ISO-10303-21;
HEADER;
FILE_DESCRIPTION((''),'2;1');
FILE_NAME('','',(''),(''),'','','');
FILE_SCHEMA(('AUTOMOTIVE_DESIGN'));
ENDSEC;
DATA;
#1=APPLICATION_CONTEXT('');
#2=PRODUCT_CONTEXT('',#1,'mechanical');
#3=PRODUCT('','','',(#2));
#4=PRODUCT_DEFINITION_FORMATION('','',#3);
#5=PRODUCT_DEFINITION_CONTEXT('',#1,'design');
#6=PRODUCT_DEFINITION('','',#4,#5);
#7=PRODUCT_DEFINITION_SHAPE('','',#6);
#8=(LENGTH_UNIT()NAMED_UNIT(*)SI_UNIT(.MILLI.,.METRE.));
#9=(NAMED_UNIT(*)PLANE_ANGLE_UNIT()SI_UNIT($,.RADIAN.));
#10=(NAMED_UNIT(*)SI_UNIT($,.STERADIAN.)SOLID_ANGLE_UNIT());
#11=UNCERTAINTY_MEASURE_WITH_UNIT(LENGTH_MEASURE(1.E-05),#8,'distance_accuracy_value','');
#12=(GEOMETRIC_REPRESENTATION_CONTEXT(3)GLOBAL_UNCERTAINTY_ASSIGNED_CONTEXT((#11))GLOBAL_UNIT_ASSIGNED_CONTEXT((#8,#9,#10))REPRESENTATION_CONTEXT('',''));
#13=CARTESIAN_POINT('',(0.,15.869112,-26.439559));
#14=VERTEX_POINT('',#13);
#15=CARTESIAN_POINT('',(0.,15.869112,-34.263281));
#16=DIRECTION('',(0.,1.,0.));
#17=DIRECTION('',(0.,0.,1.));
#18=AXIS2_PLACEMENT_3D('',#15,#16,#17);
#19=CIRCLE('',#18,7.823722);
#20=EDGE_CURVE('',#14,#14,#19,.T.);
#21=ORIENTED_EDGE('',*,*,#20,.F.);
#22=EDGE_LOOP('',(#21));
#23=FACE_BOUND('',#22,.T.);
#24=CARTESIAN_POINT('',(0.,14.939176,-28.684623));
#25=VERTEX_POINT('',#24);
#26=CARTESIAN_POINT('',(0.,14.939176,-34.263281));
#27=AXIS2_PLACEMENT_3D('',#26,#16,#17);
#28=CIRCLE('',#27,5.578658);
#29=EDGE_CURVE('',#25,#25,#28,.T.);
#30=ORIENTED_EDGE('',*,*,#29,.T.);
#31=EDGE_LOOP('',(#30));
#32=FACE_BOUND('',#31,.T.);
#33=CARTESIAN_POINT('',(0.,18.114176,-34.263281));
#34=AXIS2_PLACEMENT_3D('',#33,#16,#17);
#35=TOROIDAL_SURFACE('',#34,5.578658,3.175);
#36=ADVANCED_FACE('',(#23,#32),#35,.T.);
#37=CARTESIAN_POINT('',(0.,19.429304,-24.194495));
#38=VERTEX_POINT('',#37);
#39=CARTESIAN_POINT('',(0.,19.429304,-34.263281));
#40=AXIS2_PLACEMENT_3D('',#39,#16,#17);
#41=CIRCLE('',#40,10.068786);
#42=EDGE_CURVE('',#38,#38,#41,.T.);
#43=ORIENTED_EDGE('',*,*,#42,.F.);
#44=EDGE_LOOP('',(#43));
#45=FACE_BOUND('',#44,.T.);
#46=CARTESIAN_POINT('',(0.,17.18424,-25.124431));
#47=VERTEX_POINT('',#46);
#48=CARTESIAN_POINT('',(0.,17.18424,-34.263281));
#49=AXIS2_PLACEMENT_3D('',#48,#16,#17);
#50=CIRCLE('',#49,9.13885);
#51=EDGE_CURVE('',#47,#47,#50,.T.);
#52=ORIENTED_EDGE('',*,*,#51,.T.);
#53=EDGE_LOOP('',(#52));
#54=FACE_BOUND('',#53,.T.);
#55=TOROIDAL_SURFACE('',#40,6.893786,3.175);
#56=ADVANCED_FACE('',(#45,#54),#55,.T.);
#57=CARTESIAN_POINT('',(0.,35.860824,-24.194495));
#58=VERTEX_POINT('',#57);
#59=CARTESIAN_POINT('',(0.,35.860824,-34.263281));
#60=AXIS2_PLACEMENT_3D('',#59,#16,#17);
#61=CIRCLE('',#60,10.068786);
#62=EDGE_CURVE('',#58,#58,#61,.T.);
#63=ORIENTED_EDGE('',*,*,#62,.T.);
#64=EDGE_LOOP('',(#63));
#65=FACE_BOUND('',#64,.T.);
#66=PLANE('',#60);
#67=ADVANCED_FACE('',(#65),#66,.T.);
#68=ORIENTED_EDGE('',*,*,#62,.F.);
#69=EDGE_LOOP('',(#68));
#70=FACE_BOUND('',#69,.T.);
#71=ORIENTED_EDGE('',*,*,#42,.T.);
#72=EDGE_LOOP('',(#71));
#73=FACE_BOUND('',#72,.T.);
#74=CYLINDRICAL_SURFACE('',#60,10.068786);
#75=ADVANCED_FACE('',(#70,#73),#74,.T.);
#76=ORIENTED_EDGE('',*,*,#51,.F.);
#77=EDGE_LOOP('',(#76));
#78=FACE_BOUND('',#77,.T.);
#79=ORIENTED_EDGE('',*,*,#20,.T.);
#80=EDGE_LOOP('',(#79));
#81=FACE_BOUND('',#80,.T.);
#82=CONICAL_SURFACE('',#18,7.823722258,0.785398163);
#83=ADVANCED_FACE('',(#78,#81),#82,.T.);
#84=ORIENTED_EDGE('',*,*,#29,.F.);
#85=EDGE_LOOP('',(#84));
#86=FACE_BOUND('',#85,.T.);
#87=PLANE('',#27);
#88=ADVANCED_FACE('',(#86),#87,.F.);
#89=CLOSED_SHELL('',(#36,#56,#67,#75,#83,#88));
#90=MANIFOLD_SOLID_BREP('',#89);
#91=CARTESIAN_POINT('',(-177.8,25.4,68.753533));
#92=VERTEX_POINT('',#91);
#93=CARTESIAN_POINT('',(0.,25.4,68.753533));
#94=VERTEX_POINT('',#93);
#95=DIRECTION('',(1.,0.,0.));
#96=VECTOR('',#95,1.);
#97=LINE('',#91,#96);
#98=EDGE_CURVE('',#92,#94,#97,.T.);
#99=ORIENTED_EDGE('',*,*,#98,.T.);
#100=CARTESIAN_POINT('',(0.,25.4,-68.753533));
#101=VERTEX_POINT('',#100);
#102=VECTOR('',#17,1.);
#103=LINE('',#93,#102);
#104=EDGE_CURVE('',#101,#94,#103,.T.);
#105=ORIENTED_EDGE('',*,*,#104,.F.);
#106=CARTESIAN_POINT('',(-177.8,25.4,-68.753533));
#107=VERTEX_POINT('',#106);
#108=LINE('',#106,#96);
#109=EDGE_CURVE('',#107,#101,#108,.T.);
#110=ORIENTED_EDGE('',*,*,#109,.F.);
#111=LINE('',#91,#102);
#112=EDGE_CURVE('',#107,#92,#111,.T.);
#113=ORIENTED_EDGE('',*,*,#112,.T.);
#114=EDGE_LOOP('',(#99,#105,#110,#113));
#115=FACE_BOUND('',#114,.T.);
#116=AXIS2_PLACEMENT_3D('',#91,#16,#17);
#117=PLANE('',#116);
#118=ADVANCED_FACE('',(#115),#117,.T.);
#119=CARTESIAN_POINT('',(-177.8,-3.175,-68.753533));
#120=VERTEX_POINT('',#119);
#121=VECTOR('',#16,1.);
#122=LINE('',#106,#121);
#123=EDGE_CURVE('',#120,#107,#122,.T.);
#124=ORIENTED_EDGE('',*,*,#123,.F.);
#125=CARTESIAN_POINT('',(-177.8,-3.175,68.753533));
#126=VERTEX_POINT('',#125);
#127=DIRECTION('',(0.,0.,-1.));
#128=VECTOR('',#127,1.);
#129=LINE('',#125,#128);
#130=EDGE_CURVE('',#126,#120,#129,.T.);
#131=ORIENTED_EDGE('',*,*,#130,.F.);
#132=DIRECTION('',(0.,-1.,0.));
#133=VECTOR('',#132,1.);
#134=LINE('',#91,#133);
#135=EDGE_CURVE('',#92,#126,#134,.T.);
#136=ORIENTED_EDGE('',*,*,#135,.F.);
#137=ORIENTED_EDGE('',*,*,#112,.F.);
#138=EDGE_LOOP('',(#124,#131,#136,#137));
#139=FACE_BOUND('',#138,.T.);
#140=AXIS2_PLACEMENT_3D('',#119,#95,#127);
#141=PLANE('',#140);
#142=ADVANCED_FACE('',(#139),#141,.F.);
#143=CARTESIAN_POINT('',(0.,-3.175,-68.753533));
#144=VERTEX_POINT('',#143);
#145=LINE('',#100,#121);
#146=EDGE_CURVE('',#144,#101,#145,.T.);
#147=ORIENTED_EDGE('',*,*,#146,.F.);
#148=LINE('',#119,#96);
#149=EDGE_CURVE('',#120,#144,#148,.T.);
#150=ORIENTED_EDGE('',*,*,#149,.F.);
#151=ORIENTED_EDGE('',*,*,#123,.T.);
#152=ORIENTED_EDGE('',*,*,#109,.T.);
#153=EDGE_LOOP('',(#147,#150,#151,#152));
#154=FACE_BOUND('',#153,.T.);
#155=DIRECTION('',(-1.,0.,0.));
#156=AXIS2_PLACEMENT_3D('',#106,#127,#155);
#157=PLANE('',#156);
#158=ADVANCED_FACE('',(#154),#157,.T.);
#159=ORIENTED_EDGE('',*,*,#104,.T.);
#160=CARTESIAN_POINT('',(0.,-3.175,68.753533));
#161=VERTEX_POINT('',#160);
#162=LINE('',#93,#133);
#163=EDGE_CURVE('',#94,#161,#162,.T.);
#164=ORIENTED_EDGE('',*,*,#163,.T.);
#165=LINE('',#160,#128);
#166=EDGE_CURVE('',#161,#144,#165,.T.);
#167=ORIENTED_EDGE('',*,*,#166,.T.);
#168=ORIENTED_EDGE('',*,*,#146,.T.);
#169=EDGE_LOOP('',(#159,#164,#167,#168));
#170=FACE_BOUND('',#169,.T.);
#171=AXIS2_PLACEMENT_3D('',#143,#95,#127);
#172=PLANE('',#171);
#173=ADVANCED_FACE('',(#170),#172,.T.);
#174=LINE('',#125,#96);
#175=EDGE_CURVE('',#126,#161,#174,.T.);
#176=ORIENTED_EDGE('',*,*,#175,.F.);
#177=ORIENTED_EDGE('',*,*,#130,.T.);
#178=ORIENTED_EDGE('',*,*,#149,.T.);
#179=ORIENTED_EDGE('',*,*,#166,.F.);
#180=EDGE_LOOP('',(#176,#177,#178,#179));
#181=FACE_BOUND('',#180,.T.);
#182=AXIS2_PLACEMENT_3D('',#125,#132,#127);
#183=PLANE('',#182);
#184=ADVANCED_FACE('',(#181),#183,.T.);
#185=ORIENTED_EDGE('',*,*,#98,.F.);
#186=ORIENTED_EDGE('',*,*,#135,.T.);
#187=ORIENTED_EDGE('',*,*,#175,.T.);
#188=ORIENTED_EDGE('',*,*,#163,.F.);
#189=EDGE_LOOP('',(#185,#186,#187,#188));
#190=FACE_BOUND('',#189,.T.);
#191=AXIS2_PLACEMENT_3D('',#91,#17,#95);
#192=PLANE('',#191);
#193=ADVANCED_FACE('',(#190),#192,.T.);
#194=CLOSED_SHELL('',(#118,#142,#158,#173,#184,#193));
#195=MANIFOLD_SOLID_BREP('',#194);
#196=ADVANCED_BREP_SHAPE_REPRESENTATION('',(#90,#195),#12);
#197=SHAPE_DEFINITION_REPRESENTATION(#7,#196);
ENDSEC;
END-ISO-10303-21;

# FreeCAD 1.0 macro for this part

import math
import FreeCAD as App
import Part
import Sketcher
Q = App.Units.Quantity

doc = App.newDocument("Part")
body = doc.addObject("PartDesign::Body", "Body")

# Sketch on YZ plane
sketch1 = body.newObject("Sketcher::SketchObject", "Sketch")
sketch1.AttachmentSupport = (doc.getObject("YZ_Plane"), [""])
sketch1.MapMode = "FlatFace"
sketch1.addGeometry([
    Part.LineSegment(App.Vector(25.4, 68.753533, 0), App.Vector(-3.175, 68.753533, 0)),
    Part.LineSegment(App.Vector(-3.175, 68.753533, 0), App.Vector(-3.175, -68.753533, 0)),
    Part.LineSegment(App.Vector(-3.175, -68.753533, 0), App.Vector(25.4, -68.753533, 0)),
    Part.LineSegment(App.Vector(25.4, -68.753533, 0), App.Vector(25.4, 68.753533, 0)),
], False)
sketch1.addConstraint([
    Sketcher.Constraint("Coincident", 0, 2, 1, 1),
    Sketcher.Constraint("Coincident", 1, 2, 2, 1),
    Sketcher.Constraint("Coincident", 2, 2, 3, 1),
    Sketcher.Constraint("Coincident", 3, 2, 0, 1),
    Sketcher.Constraint("Horizontal", 0),
    Sketcher.Constraint("Vertical", 1),
    Sketcher.Constraint("Horizontal", 2),
    Sketcher.Constraint("Vertical", 3),
    Sketcher.Constraint("DistanceX", -1, 1, 2, 2, Q("1 in")),
    Sketcher.Constraint("DistanceX", 0, 2, 0, 1, Q("1.125 in")),
    Sketcher.Constraint("DistanceY", 1, 2, 1, 1, Q("137.507066 mm")),
    Sketcher.Constraint("DistanceY", -1, 1, 0, 2, Q("68.753533 mm")),
])
pad1 = body.newObject("PartDesign::Pad", "Pad")
pad1.Profile = sketch1
pad1.Length = Q("7 in")
pad1.Reversed = True
body2 = doc.addObject("PartDesign::Body", "Body001")

# Sketch on YZ plane
sketch2 = body2.newObject("Sketcher::SketchObject", "Sketch001")
sketch2.AttachmentSupport = (doc.getObject("YZ_Plane001"), [""])
sketch2.MapMode = "FlatFace"
sketch2.addGeometry([
    Part.LineSegment(App.Vector(35.860824, -34.263281, 0), App.Vector(14.939176, -34.263281, 0)),  # 0
    Part.LineSegment(App.Vector(14.939176, -34.263281, 0), App.Vector(14.939176, -39.841939, 0)),  # 1
    Part.ArcOfCircle(Part.Circle(App.Vector(18.114176, -39.841939, 0), App.Vector(0, 0, 1), 3.175), math.radians(-180), math.radians(-135)),  # 2
    Part.LineSegment(App.Vector(15.869112, -42.087003, 0), App.Vector(17.18424, -43.402131, 0)),  # 3
    Part.ArcOfCircle(Part.Circle(App.Vector(19.429304, -41.157067, 0), App.Vector(0, 0, 1), 3.175), math.radians(-135), math.radians(-90)),  # 4
    Part.LineSegment(App.Vector(19.429304, -44.332067, 0), App.Vector(35.860824, -44.332067, 0)),  # 5
    Part.LineSegment(App.Vector(35.860824, -44.332067, 0), App.Vector(35.860824, -34.263281, 0)),  # 6
], False)
sketch2.addGeometry(Part.LineSegment(App.Vector(35.860824, -34.263281, 0), App.Vector(14.939176, -34.263281, 0)), True)  # axis
sketch2.addConstraint([
    Sketcher.Constraint("Coincident", 0, 2, 1, 1),
    Sketcher.Constraint("Tangent", 1, 2, 2, 1),
    Sketcher.Constraint("Tangent", 2, 2, 3, 1),
    Sketcher.Constraint("Tangent", 3, 2, 4, 1),
    Sketcher.Constraint("Tangent", 4, 2, 5, 1),
    Sketcher.Constraint("Coincident", 5, 2, 6, 1),
    Sketcher.Constraint("Coincident", 6, 2, 0, 1),
    Sketcher.Constraint("Horizontal", 0),
    Sketcher.Constraint("Vertical", 1),
    Sketcher.Constraint("Horizontal", 5),
    Sketcher.Constraint("Vertical", 6),
    Sketcher.Constraint("Horizontal", 7),
    Sketcher.Constraint("Coincident", 7, 1, 6, 2),
    Sketcher.Constraint("Equal", 2, 4),
    Sketcher.Constraint("Vertical", 1, 2, 7, 2),
    Sketcher.Constraint("Angle", 3, Q("-45 deg")),
    Sketcher.Constraint("Radius", 2, Q("0.125 in")),
    Sketcher.Constraint("DistanceX", 0, 2, 0, 1, Q("20.921648 mm")),
    Sketcher.Constraint("DistanceX", 5, 1, 5, 2, Q("16.43152 mm")),
    Sketcher.Constraint("DistanceY", 1, 2, 1, 1, Q("5.578658 mm")),
    Sketcher.Constraint("DistanceY", 2, 3, -1, 1, Q("39.841939 mm")),
    Sketcher.Constraint("DistanceX", -1, 1, 2, 2, Q("15.869112 mm")),
])
revolution = body2.newObject("PartDesign::Revolution", "Revolution")
revolution.Profile = sketch2
revolution.ReferenceAxis = (sketch2, ["Axis0"])
revolution.Angle = 360

doc.recompute()
